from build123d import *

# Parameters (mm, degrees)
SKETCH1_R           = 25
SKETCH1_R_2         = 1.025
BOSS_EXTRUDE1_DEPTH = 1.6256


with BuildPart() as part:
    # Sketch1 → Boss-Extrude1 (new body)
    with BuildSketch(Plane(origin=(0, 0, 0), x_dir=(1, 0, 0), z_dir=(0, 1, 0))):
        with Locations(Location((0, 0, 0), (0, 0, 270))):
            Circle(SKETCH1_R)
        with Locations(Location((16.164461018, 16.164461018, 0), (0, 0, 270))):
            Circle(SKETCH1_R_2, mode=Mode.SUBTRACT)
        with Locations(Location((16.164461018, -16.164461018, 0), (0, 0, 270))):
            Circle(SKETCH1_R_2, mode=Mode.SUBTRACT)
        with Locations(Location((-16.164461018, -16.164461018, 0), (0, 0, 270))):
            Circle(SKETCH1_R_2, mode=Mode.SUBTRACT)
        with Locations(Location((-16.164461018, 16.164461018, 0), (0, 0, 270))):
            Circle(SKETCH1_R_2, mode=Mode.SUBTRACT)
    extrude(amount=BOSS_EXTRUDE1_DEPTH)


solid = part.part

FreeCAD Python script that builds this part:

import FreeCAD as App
import Part
import Sketcher
from FreeCAD import Vector

doc = App.newDocument("Part")
params = doc.addObject("Spreadsheet::Sheet", "Params")
for row, (alias, value) in enumerate([
    ("sketch1_diameter", "50 mm"),
    ("sketch1_diameter2", "2.05 mm"),
    ("pad1_length", "1.6256 mm"),
], start=1):
    params.set(f"A{row}", alias)
    params.set(f"B{row}", "=" + value)
    params.setAlias(f"B{row}", alias)

body = doc.addObject("PartDesign::Body", "Body")

# Sketch on XZ plane
sketch1 = body.newObject("Sketcher::SketchObject", "Sketch")
sketch1.AttachmentSupport = (doc.getObject("XZ_Plane"), [""])
sketch1.MapMode = "FlatFace"
sketch1.addGeometry(Part.Circle(Vector(0, 0, 0), Vector(0, 0, 1), 25), False)
sketch1.addGeometry(Part.Circle(Vector(-16.2, -16.2, 0), Vector(0, 0, 1), 1), False)
sketch1.addGeometry(Part.Circle(Vector(-16.2, 16.2, 0), Vector(0, 0, 1), 1), False)
sketch1.addGeometry(Part.Circle(Vector(16.2, -16.2, 0), Vector(0, 0, 1), 1), False)
sketch1.addGeometry(Part.Circle(Vector(16.2, 16.2, 0), Vector(0, 0, 1), 1), False)
sketch1.addConstraint(Sketcher.Constraint("Coincident", 0, 3, -1, 1))
sketch1.addConstraint(Sketcher.Constraint("Equal", 1, 2))
sketch1.addConstraint(Sketcher.Constraint("Equal", 2, 3))
sketch1.addConstraint(Sketcher.Constraint("Equal", 3, 4))
sketch1.addConstraint(Sketcher.Constraint("Symmetric", 2, 3, 3, 3, -1, 1))
sketch1.addConstraint(Sketcher.Constraint("Symmetric", 1, 3, 4, 3, -1, 1))
sketch1.addConstraint(Sketcher.Constraint("Symmetric", 1, 3, 3, 3, -2))
sketch1.addConstraint(Sketcher.Constraint("Diameter", 0, 50.0))
sketch1.addConstraint(Sketcher.Constraint("Diameter", 1, 2.05))
sketch1.addConstraint(Sketcher.Constraint("DistanceX", 1, 3, -1, 1, 16.164461))
sketch1.addConstraint(Sketcher.Constraint("DistanceY", 1, 3, -1, 1, 16.164461))
sketch1.setExpression("Constraints[7]", "Params.sketch1_diameter")
sketch1.setExpression("Constraints[8]", "Params.sketch1_diameter2")
pad1 = body.newObject("PartDesign::Pad", "Pad")
pad1.Profile = sketch1
pad1.setExpression("Length", "Params.pad1_length")
pad1.Reversed = True

doc.recompute()
